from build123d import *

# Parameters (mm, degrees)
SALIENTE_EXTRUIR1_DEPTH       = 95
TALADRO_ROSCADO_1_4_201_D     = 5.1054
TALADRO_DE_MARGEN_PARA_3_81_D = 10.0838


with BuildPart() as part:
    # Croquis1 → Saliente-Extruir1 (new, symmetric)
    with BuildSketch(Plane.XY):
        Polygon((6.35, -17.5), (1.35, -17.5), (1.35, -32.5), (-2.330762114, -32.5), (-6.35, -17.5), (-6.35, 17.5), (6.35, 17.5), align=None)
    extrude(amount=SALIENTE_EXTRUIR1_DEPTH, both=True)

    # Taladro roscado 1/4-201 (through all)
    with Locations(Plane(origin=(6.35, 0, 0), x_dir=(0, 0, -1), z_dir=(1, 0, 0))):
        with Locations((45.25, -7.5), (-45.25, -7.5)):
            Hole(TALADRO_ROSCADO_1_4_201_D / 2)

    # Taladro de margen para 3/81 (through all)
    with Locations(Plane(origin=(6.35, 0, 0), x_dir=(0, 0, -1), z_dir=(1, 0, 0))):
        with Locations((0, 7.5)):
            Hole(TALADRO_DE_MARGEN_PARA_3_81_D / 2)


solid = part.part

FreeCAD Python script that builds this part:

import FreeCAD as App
import Part
import Sketcher
Q = App.Units.Quantity


def add_polygon(sketch, points):
    """Adds a closed chain of lines whose ends are joined by coincident constraints."""
    first, n = sketch.GeometryCount, len(points)
    for a, b in zip(points, points[1:] + points[:1]):
        sketch.addGeometry(Part.LineSegment(App.Vector(*a, 0), App.Vector(*b, 0)), False)
    for i in range(n):
        sketch.addConstraint(Sketcher.Constraint("Coincident", first + i, 2, first + (i + 1) % n, 1))

doc = App.newDocument("Part")
body = doc.addObject("PartDesign::Body", "Body")

# Sketch on XY plane
sketch1 = body.newObject("Sketcher::SketchObject", "Sketch")
sketch1.AttachmentSupport = (doc.getObject("XY_Plane"), [""])
sketch1.MapMode = "FlatFace"
add_polygon(sketch1, [(1.4, -17.5), (6.3, -17.5), (6.3, 17.5), (-6.3, 17.5), (-6.3, -17.5), (-2.3, -32.5), (1.4, -32.5)])  # lines 0-6
sketch1.addConstraint([
    Sketcher.Constraint("Horizontal", 0),
    Sketcher.Constraint("Vertical", 1),
    Sketcher.Constraint("Horizontal", 2),
    Sketcher.Constraint("Vertical", 3),
    Sketcher.Constraint("Horizontal", 5),
    Sketcher.Constraint("Vertical", 6),
    Sketcher.Constraint("Symmetric", 0, 2, 2, 2, -1, 1),
    Sketcher.Constraint("Horizontal", 0, 2, 3, 2),
    Sketcher.Constraint("DistanceX", 0, 1, 0, 2, Q("5 mm")),
    Sketcher.Constraint("DistanceY", 1, 1, 1, 2, Q("35 mm")),
    Sketcher.Constraint("DistanceY", 6, 1, 6, 2, Q("15 mm")),
    Sketcher.Constraint("Angle", 4, Q("-75 deg")),
    Sketcher.Constraint("DistanceX", 2, 2, 2, 1, Q("12.7 mm")),
])
pad1 = body.newObject("PartDesign::Pad", "Pad")
pad1.Profile = sketch1
pad1.Length = 190
pad1.Midplane = True

# Sketch on YZ plane
sketch2 = body.newObject("Sketcher::SketchObject", "Sketch001")
sketch2.AttachmentSupport = (doc.getObject("YZ_Plane"), [""])
sketch2.MapMode = "FlatFace"
sketch2.AttachmentOffset = App.Placement(App.Vector(0, 0, 6.35), App.Rotation())
sketch2.addGeometry([
    Part.Circle(App.Vector(-7.5, -45.2, 0), App.Vector(0, 0, 1), 2.6),
    Part.Circle(App.Vector(-7.5, 45.2, 0), App.Vector(0, 0, 1), 2.6),
], False)
sketch2.addConstraint([
    Sketcher.Constraint("Equal", 0, 1),
    Sketcher.Constraint("Symmetric", 0, 3, 1, 3, -1),
    Sketcher.Constraint("Diameter", 0, Q("5.1054 mm")),
    Sketcher.Constraint("DistanceX", 0, 3, -1, 1, Q("7.5 mm")),
    Sketcher.Constraint("DistanceY", 0, 3, 1, 3, Q("90.5 mm")),
])
doc.recompute()
hole = body.newObject("PartDesign::Hole", "Hole")
hole.Profile = sketch2
hole.ThreadType = "None"
hole.Diameter = 5.1054
hole.DepthType = "ThroughAll"

# Sketch on YZ plane
sketch3 = body.newObject("Sketcher::SketchObject", "Sketch002")
sketch3.AttachmentSupport = (doc.getObject("YZ_Plane"), [""])
sketch3.MapMode = "FlatFace"
sketch3.AttachmentOffset = App.Placement(App.Vector(0, 0, 6.35), App.Rotation())
sketch3.addGeometry(Part.Circle(App.Vector(8, 0, 0), App.Vector(0, 0, 1), 5), False)
sketch3.addConstraint([
    Sketcher.Constraint("PointOnObject", 0, 3, -1),
    Sketcher.Constraint("Diameter", 0, Q("10.0838 mm")),
    Sketcher.Constraint("DistanceX", -1, 1, 0, 3, Q("7.5 mm")),
])
doc.recompute()
hole2 = body.newObject("PartDesign::Hole", "Hole001")
hole2.Profile = sketch3
hole2.ThreadType = "None"
hole2.Diameter = 10.0838
hole2.DepthType = "ThroughAll"

doc.recompute()
